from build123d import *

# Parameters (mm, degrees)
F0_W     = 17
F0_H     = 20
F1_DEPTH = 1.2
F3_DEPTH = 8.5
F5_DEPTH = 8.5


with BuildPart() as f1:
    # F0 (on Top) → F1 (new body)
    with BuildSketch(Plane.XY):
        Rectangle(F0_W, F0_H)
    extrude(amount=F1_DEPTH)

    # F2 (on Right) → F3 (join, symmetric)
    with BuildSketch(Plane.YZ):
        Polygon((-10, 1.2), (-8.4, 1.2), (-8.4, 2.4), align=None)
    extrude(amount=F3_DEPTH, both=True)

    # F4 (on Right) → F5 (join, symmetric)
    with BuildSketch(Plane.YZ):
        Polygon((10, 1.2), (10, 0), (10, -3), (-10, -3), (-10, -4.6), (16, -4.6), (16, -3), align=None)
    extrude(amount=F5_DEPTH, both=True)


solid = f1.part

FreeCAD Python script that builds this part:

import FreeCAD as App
import Part
import Sketcher

V = App.Vector


def add_polygon(sketch, points):
    """Adds a closed chain of lines whose ends are joined by coincident constraints."""
    first, n = sketch.GeometryCount, len(points)
    for a, b in zip(points, points[1:] + points[:1]):
        sketch.addGeometry(Part.LineSegment(App.Vector(*a, 0), App.Vector(*b, 0)), False)
    for i in range(n):
        sketch.addConstraint(Sketcher.Constraint("Coincident", first + i, 2, first + (i + 1) % n, 1))

doc = App.newDocument("Part")
params = doc.addObject("Spreadsheet::Sheet", "Params")
for row, (alias, value) in enumerate([
    ("sketch1_width", "17 mm"),
    ("sketch1_height", "20 mm"),
    ("pad1_length", "1.2 mm"),
    ("sketch2_length", "2 mm"),
    ("sketch2_width", "1.6 mm"),
    ("pad2_length", "17 mm"),
    ("sketch3_width", "20 mm"),
    ("sketch3_width2", "26 mm"),
    ("sketch3_height", "4.2 mm"),
    ("sketch3_height2", "1.6 mm"),
    ("pad3_length", "17 mm"),
], start=1):
    params.set(f"A{row}", alias)
    params.set(f"B{row}", "=" + value)
    params.setAlias(f"B{row}", alias)

body = doc.addObject("PartDesign::Body", "Body")

# Sketch on XY plane
sketch1 = body.newObject("Sketcher::SketchObject", "Sketch")
sketch1.AttachmentSupport = (doc.getObject("XY_Plane"), [""])
sketch1.MapMode = "FlatFace"
add_polygon(sketch1, [(-8, 10), (-8, -10), (8, -10), (8, 10)])  # lines 0-3
sketch1.addConstraint([
    Sketcher.Constraint("Vertical", 0),
    Sketcher.Constraint("Horizontal", 1),
    Sketcher.Constraint("Vertical", 2),
    Sketcher.Constraint("Horizontal", 3),
    Sketcher.Constraint("Symmetric", 0, 2, 2, 2, -1, 1),
    Sketcher.Constraint("DistanceX", 1, 1, 1, 2, 17.0),
    Sketcher.Constraint("DistanceY", 0, 2, 0, 1, 20.0),
])
sketch1.setExpression("Constraints[9]", "Params.sketch1_width")
sketch1.setExpression("Constraints[10]", "Params.sketch1_height")
pad1 = body.newObject("PartDesign::Pad", "Pad")
pad1.Profile = sketch1
pad1.setExpression("Length", "Params.pad1_length")

# Sketch on YZ plane
sketch2 = body.newObject("Sketcher::SketchObject", "Sketch001")
sketch2.AttachmentSupport = (doc.getObject("YZ_Plane"), [""])
sketch2.MapMode = "FlatFace"
add_polygon(sketch2, [(-10, 1.2), (-8.4, 1.2), (-8.4, 2.4)])  # lines 0-2
sketch2.addConstraint([
    Sketcher.Constraint("Horizontal", 0),
    Sketcher.Constraint("Vertical", 1),
    Sketcher.Constraint("Distance", 2, 2.0),
    Sketcher.Constraint("DistanceX", 0, 1, 0, 2, 1.6),
    Sketcher.Constraint("DistanceX", 2, 2, -1, 1, 10.0),
    Sketcher.Constraint("DistanceY", -1, 1, 0, 2, 1.2),
])
sketch2.setExpression("Constraints[5]", "Params.sketch2_length")
sketch2.setExpression("Constraints[6]", "Params.sketch2_width")
pad2 = body.newObject("PartDesign::Pad", "Pad001")
pad2.Profile = sketch2
pad2.setExpression("Length", "Params.pad2_length")
pad2.Midplane = True

# Sketch on YZ plane
sketch3 = body.newObject("Sketcher::SketchObject", "Sketch002")
sketch3.AttachmentSupport = (doc.getObject("YZ_Plane"), [""])
sketch3.MapMode = "FlatFace"
add_polygon(sketch3, [(10, 1.2), (10, -3), (-10, -3), (-10, -4.6), (16, -4.6), (16, -3)])  # lines 0-5
sketch3.addConstraint([
    Sketcher.Constraint("Vertical", 0),
    Sketcher.Constraint("Horizontal", 1),
    Sketcher.Constraint("Vertical", 2),
    Sketcher.Constraint("Horizontal", 3),
    Sketcher.Constraint("Vertical", 4),
    Sketcher.Constraint("Horizontal", 1, 2, 4, 2),
    Sketcher.Constraint("DistanceX", 1, 2, 1, 1, 20.0),
    Sketcher.Constraint("DistanceX", 3, 1, 3, 2, 26.0),
    Sketcher.Constraint("DistanceY", 0, 2, 0, 1, 4.2),
    Sketcher.Constraint("DistanceY", 2, 2, 2, 1, 1.6),
    Sketcher.Constraint("DistanceX", -1, 1, 0, 2, 10.0),
    Sketcher.Constraint("DistanceY", 0, 2, -1, 1, 3.0),
])
sketch3.setExpression("Constraints[12]", "Params.sketch3_width")
sketch3.setExpression("Constraints[13]", "Params.sketch3_width2")
sketch3.setExpression("Constraints[14]", "Params.sketch3_height")
sketch3.setExpression("Constraints[15]", "Params.sketch3_height2")
pad3 = body.newObject("PartDesign::Pad", "Pad002")
pad3.Profile = sketch3
pad3.setExpression("Length", "Params.pad3_length")
pad3.Midplane = True

doc.recompute()
